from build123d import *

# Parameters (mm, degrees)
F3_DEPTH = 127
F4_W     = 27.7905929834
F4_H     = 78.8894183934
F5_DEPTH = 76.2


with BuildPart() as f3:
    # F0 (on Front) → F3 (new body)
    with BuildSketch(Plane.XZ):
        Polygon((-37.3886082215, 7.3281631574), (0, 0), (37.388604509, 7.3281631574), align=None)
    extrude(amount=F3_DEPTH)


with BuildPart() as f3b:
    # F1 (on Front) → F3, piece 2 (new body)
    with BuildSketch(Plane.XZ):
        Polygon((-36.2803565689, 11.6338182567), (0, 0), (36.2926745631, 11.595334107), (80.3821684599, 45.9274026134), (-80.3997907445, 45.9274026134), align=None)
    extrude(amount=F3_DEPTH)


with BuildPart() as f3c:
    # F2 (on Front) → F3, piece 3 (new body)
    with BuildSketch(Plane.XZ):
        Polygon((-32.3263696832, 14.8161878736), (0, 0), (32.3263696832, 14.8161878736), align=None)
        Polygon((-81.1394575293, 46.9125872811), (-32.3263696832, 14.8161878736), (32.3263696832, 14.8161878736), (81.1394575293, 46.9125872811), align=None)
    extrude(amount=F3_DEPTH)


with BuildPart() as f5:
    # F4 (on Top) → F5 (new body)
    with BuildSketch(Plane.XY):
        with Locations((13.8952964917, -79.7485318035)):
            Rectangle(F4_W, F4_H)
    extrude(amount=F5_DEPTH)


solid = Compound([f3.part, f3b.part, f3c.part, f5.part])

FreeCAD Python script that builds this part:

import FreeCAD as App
import Part
import Sketcher

V = App.Vector
Q = App.Units.Quantity


def add_polygon(sketch, points):
    """Adds a closed chain of lines whose ends are joined by coincident constraints."""
    first, n = sketch.GeometryCount, len(points)
    for a, b in zip(points, points[1:] + points[:1]):
        sketch.addGeometry(Part.LineSegment(App.Vector(*a, 0), App.Vector(*b, 0)), False)
    for i in range(n):
        sketch.addConstraint(Sketcher.Constraint("Coincident", first + i, 2, first + (i + 1) % n, 1))

doc = App.newDocument("Part")
params = doc.addObject("Spreadsheet::Sheet", "Params")
for row, (alias, value) in enumerate([
    ("sketch1_length", "1.5 in"),
    ("sketch1_length2", "1.4999999 in"),
    ("pad1_length", "5 in"),
    ("sketch2_length", "1.5 in"),
    ("sketch2_length2", "2.2 in"),
    ("pad2_length", "5 in"),
    ("sketch3_length", "1.4 in"),
    ("sketch3_length2", "2.3 in"),
    ("pad3_length", "5 in"),
    ("pad4_length", "3 in"),
], start=1):
    params.set(f"A{row}", alias)
    params.set(f"B{row}", "=" + value)
    params.setAlias(f"B{row}", alias)

body = doc.addObject("PartDesign::Body", "Body")

# Sketch on XZ plane
sketch1 = body.newObject("Sketcher::SketchObject", "Sketch")
sketch1.AttachmentSupport = (doc.getObject("XZ_Plane"), [""])
sketch1.MapMode = "FlatFace"
add_polygon(sketch1, [(-37, 7), (0, 0), (37, 7)])  # lines 0-2
sketch1.addConstraint([
    Sketcher.Constraint("Horizontal", 2),
    Sketcher.Constraint("Coincident", 0, 2, -1, 1),
    Sketcher.Constraint("Distance", 0, Q("1.5 in")),
    Sketcher.Constraint("Distance", 1, Q("1.4999999 in")),
    Sketcher.Constraint("DistanceX", 2, 2, 2, 1, 74.777213),
])
sketch1.setExpression("Constraints[5]", "Params.sketch1_length")
sketch1.setExpression("Constraints[6]", "Params.sketch1_length2")
pad1 = body.newObject("PartDesign::Pad", "Pad")
pad1.Profile = sketch1
pad1.setExpression("Length", "Params.pad1_length")
body2 = doc.addObject("PartDesign::Body", "Body001")

# Sketch on XZ plane
sketch2 = body2.newObject("Sketcher::SketchObject", "Sketch001")
sketch2.AttachmentSupport = (doc.getObject("XZ_Plane001"), [""])
sketch2.MapMode = "FlatFace"
add_polygon(sketch2, [(-36, 12), (0, 0), (36, 12), (80, 46), (-80, 46)])  # lines 0-4
sketch2.addConstraint([
    Sketcher.Constraint("Horizontal", 3),
    Sketcher.Constraint("Coincident", 0, 2, -1, 1),
    Sketcher.Constraint("Equal", 0, 1),
    Sketcher.Constraint("Equal", 2, 4),
    Sketcher.Constraint("Distance", 0, Q("1.5 in")),
    Sketcher.Constraint("Distance", 2, Q("2.2 in")),
    Sketcher.Constraint("DistanceX", 3, 2, 3, 1, 160.781959),
    Sketcher.Constraint("DistanceX", -1, 1, 2, 2, 80.382168),
    Sketcher.Constraint("DistanceY", -1, 1, 4, 2, 11.633818),
])
sketch2.setExpression("Constraints[9]", "Params.sketch2_length")
sketch2.setExpression("Constraints[10]", "Params.sketch2_length2")
pad2 = body2.newObject("PartDesign::Pad", "Pad001")
pad2.Profile = sketch2
pad2.setExpression("Length", "Params.pad2_length")
body3 = doc.addObject("PartDesign::Body", "Body002")

# Sketch on XZ plane
sketch3 = body3.newObject("Sketcher::SketchObject", "Sketch002")
sketch3.AttachmentSupport = (doc.getObject("XZ_Plane002"), [""])
sketch3.MapMode = "FlatFace"
add_polygon(sketch3, [(-32, 15), (0, 0), (32, 15), (81, 47), (-81, 47)])  # lines 0-4
sketch3.addConstraint([
    Sketcher.Constraint("Horizontal", 3),
    Sketcher.Constraint("Coincident", 0, 2, -1, 1),
    Sketcher.Constraint("Symmetric", 1, 2, 4, 2, -2),
    Sketcher.Constraint("Equal", 2, 4),
    Sketcher.Constraint("Distance", 0, Q("1.4 in")),
    Sketcher.Constraint("Distance", 2, Q("2.3 in")),
    Sketcher.Constraint("DistanceY", 1, 2, 2, 2, 32.096399),
    Sketcher.Constraint("DistanceX", 3, 2, 3, 1, 162.278915),
])
sketch3.setExpression("Constraints[9]", "Params.sketch3_length")
sketch3.setExpression("Constraints[10]", "Params.sketch3_length2")
pad3 = body3.newObject("PartDesign::Pad", "Pad002")
pad3.Profile = sketch3
pad3.setExpression("Length", "Params.pad3_length")
body4 = doc.addObject("PartDesign::Body", "Body003")

# Sketch on XY plane
sketch4 = body4.newObject("Sketcher::SketchObject", "Sketch003")
sketch4.AttachmentSupport = (doc.getObject("XY_Plane003"), [""])
sketch4.MapMode = "FlatFace"
add_polygon(sketch4, [(0, -40), (0, -119), (28, -119), (28, -40)])  # lines 0-3
sketch4.addConstraint([
    Sketcher.Constraint("Vertical", 0),
    Sketcher.Constraint("Horizontal", 1),
    Sketcher.Constraint("Vertical", 2),
    Sketcher.Constraint("Horizontal", 3),
    Sketcher.Constraint("PointOnObject", 0, 2, -2),
    Sketcher.Constraint("DistanceY", 0, 2, 0, 1, 78.889418),
    Sketcher.Constraint("DistanceX", 1, 1, 1, 2, 27.790593),
    Sketcher.Constraint("DistanceY", 0, 2, -1, 1, 119.193241),
])
pad4 = body4.newObject("PartDesign::Pad", "Pad003")
pad4.Profile = sketch4
pad4.setExpression("Length", "Params.pad4_length")

doc.recompute()
